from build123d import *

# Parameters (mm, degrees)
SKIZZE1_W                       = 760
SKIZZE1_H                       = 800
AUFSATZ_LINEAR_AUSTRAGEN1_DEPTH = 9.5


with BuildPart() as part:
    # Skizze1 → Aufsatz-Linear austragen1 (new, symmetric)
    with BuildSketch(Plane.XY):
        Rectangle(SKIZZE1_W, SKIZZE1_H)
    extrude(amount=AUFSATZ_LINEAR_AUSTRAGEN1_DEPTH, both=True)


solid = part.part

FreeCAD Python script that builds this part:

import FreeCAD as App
import Part
import Sketcher
from FreeCAD import Vector
Q = App.Units.Quantity

doc = App.newDocument("Part")
body = doc.addObject("PartDesign::Body", "Body")

sketch1 = doc.addObject("Sketcher::SketchObject", "Sketch")
body.addObject(sketch1)
sketch1.AttachmentSupport = (doc.XY_Plane, [""])
sketch1.MapMode = "FlatFace"
sketch1.addGeometry(Part.LineSegment(Vector(-380, 400, 0), Vector(-380, -400, 0)), False)
sketch1.addGeometry(Part.LineSegment(Vector(-380, -400, 0), Vector(380, -400, 0)), False)
sketch1.addGeometry(Part.LineSegment(Vector(380, -400, 0), Vector(380, 400, 0)), False)
sketch1.addGeometry(Part.LineSegment(Vector(380, 400, 0), Vector(-380, 400, 0)), False)
sketch1.addConstraint(Sketcher.Constraint("Coincident", 0, 2, 1, 1))
sketch1.addConstraint(Sketcher.Constraint("Coincident", 1, 2, 2, 1))
sketch1.addConstraint(Sketcher.Constraint("Coincident", 2, 2, 3, 1))
sketch1.addConstraint(Sketcher.Constraint("Coincident", 3, 2, 0, 1))
sketch1.addConstraint(Sketcher.Constraint("Vertical", 0))
sketch1.addConstraint(Sketcher.Constraint("Horizontal", 1))
sketch1.addConstraint(Sketcher.Constraint("Vertical", 2))
sketch1.addConstraint(Sketcher.Constraint("Horizontal", 3))
sketch1.addConstraint(Sketcher.Constraint("Symmetric", 0, 2, 2, 2, -1, 1))
sketch1.addConstraint(Sketcher.Constraint("DistanceX", 1, 1, 1, 2, Q("760 mm")))
sketch1.addConstraint(Sketcher.Constraint("DistanceY", 0, 2, 0, 1, Q("800 mm")))
pad1 = doc.addObject("PartDesign::Pad", "Pad")
body.addObject(pad1)
pad1.Profile = sketch1
pad1.Length = 19
pad1.Midplane = True

doc.recompute()
